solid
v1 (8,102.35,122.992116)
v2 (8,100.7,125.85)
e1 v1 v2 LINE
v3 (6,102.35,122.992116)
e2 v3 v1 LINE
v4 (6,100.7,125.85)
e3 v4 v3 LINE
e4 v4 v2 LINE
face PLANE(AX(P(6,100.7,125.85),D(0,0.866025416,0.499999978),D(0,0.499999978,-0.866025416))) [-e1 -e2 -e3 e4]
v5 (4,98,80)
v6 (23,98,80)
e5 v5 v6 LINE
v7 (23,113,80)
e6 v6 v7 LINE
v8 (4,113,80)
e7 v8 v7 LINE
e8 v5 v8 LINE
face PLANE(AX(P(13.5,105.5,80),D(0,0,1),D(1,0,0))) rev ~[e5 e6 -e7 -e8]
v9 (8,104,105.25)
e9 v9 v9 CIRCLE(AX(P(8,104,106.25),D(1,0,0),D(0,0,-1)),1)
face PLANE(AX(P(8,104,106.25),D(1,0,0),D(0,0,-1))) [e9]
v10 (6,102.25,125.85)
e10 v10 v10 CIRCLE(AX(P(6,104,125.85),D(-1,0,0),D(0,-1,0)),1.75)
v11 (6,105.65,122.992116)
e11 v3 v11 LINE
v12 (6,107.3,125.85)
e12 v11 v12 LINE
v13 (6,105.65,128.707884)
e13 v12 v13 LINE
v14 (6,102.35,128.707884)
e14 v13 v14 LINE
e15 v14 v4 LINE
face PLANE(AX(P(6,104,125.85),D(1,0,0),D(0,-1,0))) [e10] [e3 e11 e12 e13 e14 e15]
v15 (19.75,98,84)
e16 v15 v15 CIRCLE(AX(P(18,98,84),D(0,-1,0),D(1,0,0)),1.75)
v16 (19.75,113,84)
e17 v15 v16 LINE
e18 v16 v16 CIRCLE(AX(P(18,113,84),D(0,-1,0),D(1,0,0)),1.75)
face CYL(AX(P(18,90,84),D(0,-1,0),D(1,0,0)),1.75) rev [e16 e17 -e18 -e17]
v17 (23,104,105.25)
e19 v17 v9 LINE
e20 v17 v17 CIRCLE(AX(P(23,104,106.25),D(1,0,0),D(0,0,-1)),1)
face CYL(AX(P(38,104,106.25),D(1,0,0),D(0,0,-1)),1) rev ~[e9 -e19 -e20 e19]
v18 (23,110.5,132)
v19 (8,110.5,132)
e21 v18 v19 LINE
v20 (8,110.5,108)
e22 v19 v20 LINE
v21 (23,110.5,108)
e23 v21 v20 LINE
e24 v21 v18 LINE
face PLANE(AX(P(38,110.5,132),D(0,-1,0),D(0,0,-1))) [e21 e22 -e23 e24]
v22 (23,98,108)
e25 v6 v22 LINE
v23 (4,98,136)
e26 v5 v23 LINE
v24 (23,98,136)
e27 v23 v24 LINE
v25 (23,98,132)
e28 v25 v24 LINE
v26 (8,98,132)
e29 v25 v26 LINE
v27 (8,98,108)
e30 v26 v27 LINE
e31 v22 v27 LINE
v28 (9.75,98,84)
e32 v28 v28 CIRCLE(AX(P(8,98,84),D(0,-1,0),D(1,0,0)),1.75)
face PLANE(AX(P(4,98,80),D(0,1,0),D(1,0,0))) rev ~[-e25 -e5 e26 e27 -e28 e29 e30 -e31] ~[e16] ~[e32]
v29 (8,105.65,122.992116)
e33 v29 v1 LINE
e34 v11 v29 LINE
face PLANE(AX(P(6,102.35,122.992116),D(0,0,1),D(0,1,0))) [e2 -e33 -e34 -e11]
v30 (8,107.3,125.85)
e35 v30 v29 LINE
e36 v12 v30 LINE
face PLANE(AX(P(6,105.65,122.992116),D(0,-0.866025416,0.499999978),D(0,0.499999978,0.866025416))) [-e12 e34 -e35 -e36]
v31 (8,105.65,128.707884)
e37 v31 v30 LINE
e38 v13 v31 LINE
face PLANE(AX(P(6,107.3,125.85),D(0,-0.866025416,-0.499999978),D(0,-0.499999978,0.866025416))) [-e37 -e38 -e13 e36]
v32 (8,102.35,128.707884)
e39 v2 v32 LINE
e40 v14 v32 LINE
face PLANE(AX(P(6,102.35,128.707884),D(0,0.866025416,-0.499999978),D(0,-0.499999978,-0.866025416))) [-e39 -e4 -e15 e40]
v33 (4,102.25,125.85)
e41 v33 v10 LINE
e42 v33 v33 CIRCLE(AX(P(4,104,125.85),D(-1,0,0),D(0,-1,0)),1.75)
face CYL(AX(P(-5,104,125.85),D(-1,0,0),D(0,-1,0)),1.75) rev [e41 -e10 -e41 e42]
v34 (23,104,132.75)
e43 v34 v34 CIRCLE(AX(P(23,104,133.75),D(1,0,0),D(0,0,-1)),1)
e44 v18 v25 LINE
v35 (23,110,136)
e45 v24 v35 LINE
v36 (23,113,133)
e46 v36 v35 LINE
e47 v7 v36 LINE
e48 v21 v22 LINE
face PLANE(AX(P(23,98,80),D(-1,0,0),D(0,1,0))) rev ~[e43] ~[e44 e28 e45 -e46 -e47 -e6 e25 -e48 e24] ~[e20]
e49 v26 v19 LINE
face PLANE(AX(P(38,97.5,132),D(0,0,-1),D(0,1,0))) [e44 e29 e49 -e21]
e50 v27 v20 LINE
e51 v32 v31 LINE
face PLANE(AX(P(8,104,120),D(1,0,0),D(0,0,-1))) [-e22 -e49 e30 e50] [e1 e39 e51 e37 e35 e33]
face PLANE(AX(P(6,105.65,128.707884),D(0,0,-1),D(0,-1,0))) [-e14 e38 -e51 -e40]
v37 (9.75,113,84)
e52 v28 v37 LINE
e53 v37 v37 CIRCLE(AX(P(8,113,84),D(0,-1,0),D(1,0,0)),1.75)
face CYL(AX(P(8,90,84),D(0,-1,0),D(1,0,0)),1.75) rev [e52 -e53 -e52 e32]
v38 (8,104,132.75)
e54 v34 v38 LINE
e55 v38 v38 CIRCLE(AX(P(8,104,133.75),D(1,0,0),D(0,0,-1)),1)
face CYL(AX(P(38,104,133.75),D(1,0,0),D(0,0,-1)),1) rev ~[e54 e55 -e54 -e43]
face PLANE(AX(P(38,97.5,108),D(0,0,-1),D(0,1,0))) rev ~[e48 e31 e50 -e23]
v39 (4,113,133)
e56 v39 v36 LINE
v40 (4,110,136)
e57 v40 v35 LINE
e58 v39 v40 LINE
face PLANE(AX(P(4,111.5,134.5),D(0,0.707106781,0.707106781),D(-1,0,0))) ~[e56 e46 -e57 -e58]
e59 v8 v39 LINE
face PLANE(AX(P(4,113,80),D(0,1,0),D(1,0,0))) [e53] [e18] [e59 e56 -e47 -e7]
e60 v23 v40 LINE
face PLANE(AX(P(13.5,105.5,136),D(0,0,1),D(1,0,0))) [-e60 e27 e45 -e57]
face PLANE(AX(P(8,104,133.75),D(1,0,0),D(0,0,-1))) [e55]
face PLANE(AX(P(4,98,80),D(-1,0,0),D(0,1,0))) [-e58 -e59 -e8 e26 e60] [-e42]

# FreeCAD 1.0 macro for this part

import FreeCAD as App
import Part
import Sketcher

V = App.Vector
Q = App.Units.Quantity


def edges_at(feature, points):
    """Names of the edges that pass closest to the given points."""
    edges = feature.Shape.Edges
    near = lambda p: min(range(len(edges)), key=lambda i: edges[i].distToShape(Part.Vertex(*p))[0])
    return sorted({f"Edge{near(p) + 1}" for p in points})


def add_polygon(sketch, points):
    """Adds a closed chain of lines whose ends are joined by coincident constraints."""
    first, n = sketch.GeometryCount, len(points)
    for a, b in zip(points, points[1:] + points[:1]):
        sketch.addGeometry(Part.LineSegment(App.Vector(*a, 0), App.Vector(*b, 0)), False)
    for i in range(n):
        sketch.addConstraint(Sketcher.Constraint("Coincident", first + i, 2, first + (i + 1) % n, 1))

doc = App.newDocument("Part")
body = doc.addObject("PartDesign::Body", "Body")

# Sketch on YZ plane
sketch1 = body.newObject("Sketcher::SketchObject", "Sketch")
sketch1.AttachmentSupport = (doc.getObject("YZ_Plane"), [""])
sketch1.MapMode = "FlatFace"
sketch1.AttachmentOffset = App.Placement(V(0, 0, -5), App.Rotation())
sketch1.addGeometry(Part.Circle(V(104, 125.8, 0), V(0, 0, 1), 1.8), False)
sketch1.addConstraint([
    Sketcher.Constraint("Diameter", 0, 3.5),
    Sketcher.Constraint("DistanceX", -1, 1, 0, 3, 104.0),
    Sketcher.Constraint("DistanceY", -1, 1, 0, 3, 125.85),
])
pad1 = body.newObject("PartDesign::Pad", "Pad")
pad1.Profile = sketch1
pad1.Length = 32
body2 = doc.addObject("PartDesign::Body", "Body001")

# Sketch on YZ plane
sketch2 = body2.newObject("Sketcher::SketchObject", "Sketch001")
sketch2.AttachmentSupport = (doc.getObject("YZ_Plane001"), [""])
sketch2.MapMode = "FlatFace"
sketch2.AttachmentOffset = App.Placement(V(0, 0, 6), App.Rotation())
add_polygon(sketch2, [(100.7, 125.8), (102.3, 123), (105.7, 123), (107.3, 125.8), (105.7, 128.7), (102.3, 128.7)])  # lines 0-5
sketch2.addConstraint([
    Sketcher.Constraint("Horizontal", 1),
    Sketcher.Constraint("Horizontal", 4),
    Sketcher.Constraint("Parallel", 0, 3),
    Sketcher.Constraint("Parallel", 2, 5),
    Sketcher.Constraint("Horizontal", 2, 2, 5, 2),
    Sketcher.Constraint("Vertical", 1, 2, 3, 2),
    Sketcher.Constraint("Vertical", 0, 2, 4, 2),
    Sketcher.Constraint("Angle", 0, Q("-60.000001 deg")),
    Sketcher.Constraint("DistanceX", 1, 1, 1, 2, 3.3),
    Sketcher.Constraint("Distance", 0, 3.3),
    Sketcher.Constraint("DistanceX", -1, 1, 2, 2, 107.3),
    Sketcher.Constraint("DistanceY", -1, 1, 2, 2, 125.85),
])
pad2 = body2.newObject("PartDesign::Pad", "Pad001")
pad2.Profile = sketch2
pad2.Length = 10
doc.recompute()

boolean = body2.newObject("PartDesign::Boolean", "Boolean")
boolean.Type = "Fuse"
boolean.addObjects([body])
body3 = doc.addObject("PartDesign::Body", "Body002")
body3.AllowCompound = True

# Sketch on YZ plane
sketch3 = body3.newObject("Sketcher::SketchObject", "Sketch002")
sketch3.AttachmentSupport = (doc.getObject("YZ_Plane002"), [""])
sketch3.MapMode = "FlatFace"
sketch3.AttachmentOffset = App.Placement(V(0, 0, 38), App.Rotation())
sketch3.addGeometry(Part.Circle(V(104, 106.2, 0), V(0, 0, 1), 1), False)  # 0
sketch3.addGeometry(Part.Circle(V(104, 133.8, 0), V(0, 0, 1), 1), False)  # 1
add_polygon(sketch3, [(110.5, 132), (97.5, 132), (97.5, 108), (110.5, 108)])  # lines 2-5
sketch3.addConstraint([
    Sketcher.Constraint("Horizontal", 2),
    Sketcher.Constraint("Vertical", 3),
    Sketcher.Constraint("Horizontal", 4),
    Sketcher.Constraint("Vertical", 5),
    Sketcher.Constraint("Equal", 0, 1),
    Sketcher.Constraint("Vertical", 0, 3, 1, 3),
    Sketcher.Constraint("Diameter", 0, 2.0),
    Sketcher.Constraint("DistanceX", 2, 2, 2, 1, 13.0),
    Sketcher.Constraint("DistanceY", 3, 2, 3, 1, 24.0),
    Sketcher.Constraint("DistanceX", -1, 1, 0, 3, 104.0),
    Sketcher.Constraint("DistanceY", -1, 1, 2, 2, 132.0),
    Sketcher.Constraint("DistanceX", -1, 1, 2, 2, 97.5),
    Sketcher.Constraint("DistanceY", 0, 3, 1, 3, 27.5),
    Sketcher.Constraint("DistanceY", -1, 1, 0, 3, 106.25),
])
pad3 = body3.newObject("PartDesign::Pad", "Pad002")
pad3.Profile = sketch3
pad3.Length = 30
pad3.Reversed = True
body4 = doc.addObject("PartDesign::Body", "Body003")

# Sketch on XY plane
sketch4 = body4.newObject("Sketcher::SketchObject", "Sketch003")
sketch4.AttachmentSupport = (doc.getObject("XY_Plane003"), [""])
sketch4.MapMode = "FlatFace"
sketch4.addGeometry(Part.Circle(V(0, 0, 0), V(0, 0, 1), 1.8), False)
sketch4.addConstraint([
    Sketcher.Constraint("Coincident", 0, 3, -1, 1),
    Sketcher.Constraint("Diameter", 0, 3.5),
])
pad4 = body4.newObject("PartDesign::Pad", "Pad003")
pad4.Profile = sketch4
pad4.Length = 32
body5 = doc.addObject("PartDesign::Body", "Body004")
doc.recompute()

body4.Placement = App.Placement(V(0, 0, 0), App.Rotation(V(1, 0, 0), 270))
boolean2 = body5.newObject("PartDesign::Boolean", "Boolean001")
boolean2.Type = "Fuse"
boolean2.addObjects([body4])
body6 = doc.addObject("PartDesign::Body", "Body005")
doc.recompute()

body5.Placement = App.Placement(V(8, 90, 84), App.Rotation(V(0, 0, 1), 0))
boolean3 = body6.newObject("PartDesign::Boolean", "Boolean002")
boolean3.Type = "Fuse"
boolean3.addObjects([body5])
body7 = doc.addObject("PartDesign::Body", "Body006")

# Sketch on XY plane
sketch5 = body7.newObject("Sketcher::SketchObject", "Sketch004")
sketch5.AttachmentSupport = (doc.getObject("XY_Plane006"), [""])
sketch5.MapMode = "FlatFace"
sketch5.addGeometry(Part.Circle(V(0, 0, 0), V(0, 0, 1), 1.8), False)
sketch5.addConstraint([
    Sketcher.Constraint("Coincident", 0, 3, -1, 1),
    Sketcher.Constraint("Diameter", 0, 3.5),
])
pad5 = body7.newObject("PartDesign::Pad", "Pad004")
pad5.Profile = sketch5
pad5.Length = 32
body8 = doc.addObject("PartDesign::Body", "Body007")
doc.recompute()

body7.Placement = App.Placement(V(0, 0, 0), App.Rotation(V(1, 0, 0), 270))
boolean4 = body8.newObject("PartDesign::Boolean", "Boolean003")
boolean4.Type = "Fuse"
boolean4.addObjects([body7])
body9 = doc.addObject("PartDesign::Body", "Body008")
body9.AllowCompound = True
doc.recompute()

body8.Placement = App.Placement(V(18, 90, 84), App.Rotation(V(0, 0, 1), 0))
boolean5 = body9.newObject("PartDesign::Boolean", "Boolean004")
boolean5.Type = "Fuse"
boolean5.addObjects([body8])
doc.recompute()

boolean6 = body9.newObject("PartDesign::Boolean", "Boolean005")
boolean6.Type = "Fuse"
boolean6.addObjects([body6])
body10 = doc.addObject("PartDesign::Body", "Body009")

# Sketch on XY plane
sketch6 = body10.newObject("Sketcher::SketchObject", "Sketch005")
sketch6.AttachmentSupport = (doc.getObject("XY_Plane009"), [""])
sketch6.MapMode = "FlatFace"
sketch6.AttachmentOffset = App.Placement(V(0, 0, 80), App.Rotation())
add_polygon(sketch6, [(4, 113), (4, 98), (23, 98), (23, 113)])  # lines 0-3
sketch6.addConstraint([
    Sketcher.Constraint("Vertical", 0),
    Sketcher.Constraint("Horizontal", 1),
    Sketcher.Constraint("Vertical", 2),
    Sketcher.Constraint("Horizontal", 3),
    Sketcher.Constraint("DistanceX", 1, 1, 1, 2, 19.0),
    Sketcher.Constraint("DistanceY", 0, 2, 0, 1, 15.0),
    Sketcher.Constraint("DistanceX", -1, 1, 0, 2, 4.0),
    Sketcher.Constraint("DistanceY", -1, 1, 0, 2, 98.0),
])
pad6 = body10.newObject("PartDesign::Pad", "Pad005")
pad6.Profile = sketch6
pad6.Length = 56
doc.recompute()

boolean7 = body10.newObject("PartDesign::Boolean", "Boolean006")
boolean7.Type = "Cut"
boolean7.addObjects([body9])
doc.recompute()

boolean8 = body10.newObject("PartDesign::Boolean", "Boolean007")
boolean8.Type = "Cut"
boolean8.addObjects([body3])
doc.recompute()

chamfer = body10.newObject("PartDesign::Chamfer", "Chamfer")
chamfer.Base = (boolean8, edges_at(boolean8, [(13.5, 113, 136)]))
chamfer.Size = 3
doc.recompute()

boolean9 = body10.newObject("PartDesign::Boolean", "Boolean008")
boolean9.Type = "Cut"
boolean9.addObjects([body2])

doc.recompute()
